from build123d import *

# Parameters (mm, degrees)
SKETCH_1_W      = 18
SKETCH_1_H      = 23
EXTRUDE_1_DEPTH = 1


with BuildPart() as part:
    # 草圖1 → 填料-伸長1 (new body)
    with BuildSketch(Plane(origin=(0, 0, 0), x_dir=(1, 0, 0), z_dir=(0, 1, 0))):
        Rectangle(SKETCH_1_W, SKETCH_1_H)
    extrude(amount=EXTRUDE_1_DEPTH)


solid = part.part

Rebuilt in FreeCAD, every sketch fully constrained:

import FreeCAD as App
import Part
import Sketcher

V = App.Vector

doc = App.newDocument("Part")
body = doc.addObject("PartDesign::Body", "Body")

# Sketch on XZ plane
sketch1 = body.newObject("Sketcher::SketchObject", "Sketch")
sketch1.AttachmentSupport = (doc.getObject("XZ_Plane"), [""])
sketch1.MapMode = "FlatFace"
sketch1.addGeometry([
    Part.LineSegment(V(-9, -12, 0), V(-9, 12, 0)),
    Part.LineSegment(V(-9, 12, 0), V(9, 12, 0)),
    Part.LineSegment(V(9, 12, 0), V(9, -12, 0)),
    Part.LineSegment(V(9, -12, 0), V(-9, -12, 0)),
], False)
sketch1.addConstraint([
    Sketcher.Constraint("Coincident", 0, 2, 1, 1),
    Sketcher.Constraint("Coincident", 1, 2, 2, 1),
    Sketcher.Constraint("Coincident", 2, 2, 3, 1),
    Sketcher.Constraint("Coincident", 3, 2, 0, 1),
    Sketcher.Constraint("Vertical", 0),
    Sketcher.Constraint("Horizontal", 1),
    Sketcher.Constraint("Vertical", 2),
    Sketcher.Constraint("Horizontal", 3),
    Sketcher.Constraint("Symmetric", 0, 2, 2, 2, -1, 1),
    Sketcher.Constraint("DistanceX", 1, 1, 1, 2, 18.0),
    Sketcher.Constraint("DistanceY", 0, 1, 0, 2, 23.0),
])
pad1 = body.newObject("PartDesign::Pad", "Pad")
pad1.Profile = sketch1
pad1.Length = 1
pad1.Reversed = True

doc.recompute()
